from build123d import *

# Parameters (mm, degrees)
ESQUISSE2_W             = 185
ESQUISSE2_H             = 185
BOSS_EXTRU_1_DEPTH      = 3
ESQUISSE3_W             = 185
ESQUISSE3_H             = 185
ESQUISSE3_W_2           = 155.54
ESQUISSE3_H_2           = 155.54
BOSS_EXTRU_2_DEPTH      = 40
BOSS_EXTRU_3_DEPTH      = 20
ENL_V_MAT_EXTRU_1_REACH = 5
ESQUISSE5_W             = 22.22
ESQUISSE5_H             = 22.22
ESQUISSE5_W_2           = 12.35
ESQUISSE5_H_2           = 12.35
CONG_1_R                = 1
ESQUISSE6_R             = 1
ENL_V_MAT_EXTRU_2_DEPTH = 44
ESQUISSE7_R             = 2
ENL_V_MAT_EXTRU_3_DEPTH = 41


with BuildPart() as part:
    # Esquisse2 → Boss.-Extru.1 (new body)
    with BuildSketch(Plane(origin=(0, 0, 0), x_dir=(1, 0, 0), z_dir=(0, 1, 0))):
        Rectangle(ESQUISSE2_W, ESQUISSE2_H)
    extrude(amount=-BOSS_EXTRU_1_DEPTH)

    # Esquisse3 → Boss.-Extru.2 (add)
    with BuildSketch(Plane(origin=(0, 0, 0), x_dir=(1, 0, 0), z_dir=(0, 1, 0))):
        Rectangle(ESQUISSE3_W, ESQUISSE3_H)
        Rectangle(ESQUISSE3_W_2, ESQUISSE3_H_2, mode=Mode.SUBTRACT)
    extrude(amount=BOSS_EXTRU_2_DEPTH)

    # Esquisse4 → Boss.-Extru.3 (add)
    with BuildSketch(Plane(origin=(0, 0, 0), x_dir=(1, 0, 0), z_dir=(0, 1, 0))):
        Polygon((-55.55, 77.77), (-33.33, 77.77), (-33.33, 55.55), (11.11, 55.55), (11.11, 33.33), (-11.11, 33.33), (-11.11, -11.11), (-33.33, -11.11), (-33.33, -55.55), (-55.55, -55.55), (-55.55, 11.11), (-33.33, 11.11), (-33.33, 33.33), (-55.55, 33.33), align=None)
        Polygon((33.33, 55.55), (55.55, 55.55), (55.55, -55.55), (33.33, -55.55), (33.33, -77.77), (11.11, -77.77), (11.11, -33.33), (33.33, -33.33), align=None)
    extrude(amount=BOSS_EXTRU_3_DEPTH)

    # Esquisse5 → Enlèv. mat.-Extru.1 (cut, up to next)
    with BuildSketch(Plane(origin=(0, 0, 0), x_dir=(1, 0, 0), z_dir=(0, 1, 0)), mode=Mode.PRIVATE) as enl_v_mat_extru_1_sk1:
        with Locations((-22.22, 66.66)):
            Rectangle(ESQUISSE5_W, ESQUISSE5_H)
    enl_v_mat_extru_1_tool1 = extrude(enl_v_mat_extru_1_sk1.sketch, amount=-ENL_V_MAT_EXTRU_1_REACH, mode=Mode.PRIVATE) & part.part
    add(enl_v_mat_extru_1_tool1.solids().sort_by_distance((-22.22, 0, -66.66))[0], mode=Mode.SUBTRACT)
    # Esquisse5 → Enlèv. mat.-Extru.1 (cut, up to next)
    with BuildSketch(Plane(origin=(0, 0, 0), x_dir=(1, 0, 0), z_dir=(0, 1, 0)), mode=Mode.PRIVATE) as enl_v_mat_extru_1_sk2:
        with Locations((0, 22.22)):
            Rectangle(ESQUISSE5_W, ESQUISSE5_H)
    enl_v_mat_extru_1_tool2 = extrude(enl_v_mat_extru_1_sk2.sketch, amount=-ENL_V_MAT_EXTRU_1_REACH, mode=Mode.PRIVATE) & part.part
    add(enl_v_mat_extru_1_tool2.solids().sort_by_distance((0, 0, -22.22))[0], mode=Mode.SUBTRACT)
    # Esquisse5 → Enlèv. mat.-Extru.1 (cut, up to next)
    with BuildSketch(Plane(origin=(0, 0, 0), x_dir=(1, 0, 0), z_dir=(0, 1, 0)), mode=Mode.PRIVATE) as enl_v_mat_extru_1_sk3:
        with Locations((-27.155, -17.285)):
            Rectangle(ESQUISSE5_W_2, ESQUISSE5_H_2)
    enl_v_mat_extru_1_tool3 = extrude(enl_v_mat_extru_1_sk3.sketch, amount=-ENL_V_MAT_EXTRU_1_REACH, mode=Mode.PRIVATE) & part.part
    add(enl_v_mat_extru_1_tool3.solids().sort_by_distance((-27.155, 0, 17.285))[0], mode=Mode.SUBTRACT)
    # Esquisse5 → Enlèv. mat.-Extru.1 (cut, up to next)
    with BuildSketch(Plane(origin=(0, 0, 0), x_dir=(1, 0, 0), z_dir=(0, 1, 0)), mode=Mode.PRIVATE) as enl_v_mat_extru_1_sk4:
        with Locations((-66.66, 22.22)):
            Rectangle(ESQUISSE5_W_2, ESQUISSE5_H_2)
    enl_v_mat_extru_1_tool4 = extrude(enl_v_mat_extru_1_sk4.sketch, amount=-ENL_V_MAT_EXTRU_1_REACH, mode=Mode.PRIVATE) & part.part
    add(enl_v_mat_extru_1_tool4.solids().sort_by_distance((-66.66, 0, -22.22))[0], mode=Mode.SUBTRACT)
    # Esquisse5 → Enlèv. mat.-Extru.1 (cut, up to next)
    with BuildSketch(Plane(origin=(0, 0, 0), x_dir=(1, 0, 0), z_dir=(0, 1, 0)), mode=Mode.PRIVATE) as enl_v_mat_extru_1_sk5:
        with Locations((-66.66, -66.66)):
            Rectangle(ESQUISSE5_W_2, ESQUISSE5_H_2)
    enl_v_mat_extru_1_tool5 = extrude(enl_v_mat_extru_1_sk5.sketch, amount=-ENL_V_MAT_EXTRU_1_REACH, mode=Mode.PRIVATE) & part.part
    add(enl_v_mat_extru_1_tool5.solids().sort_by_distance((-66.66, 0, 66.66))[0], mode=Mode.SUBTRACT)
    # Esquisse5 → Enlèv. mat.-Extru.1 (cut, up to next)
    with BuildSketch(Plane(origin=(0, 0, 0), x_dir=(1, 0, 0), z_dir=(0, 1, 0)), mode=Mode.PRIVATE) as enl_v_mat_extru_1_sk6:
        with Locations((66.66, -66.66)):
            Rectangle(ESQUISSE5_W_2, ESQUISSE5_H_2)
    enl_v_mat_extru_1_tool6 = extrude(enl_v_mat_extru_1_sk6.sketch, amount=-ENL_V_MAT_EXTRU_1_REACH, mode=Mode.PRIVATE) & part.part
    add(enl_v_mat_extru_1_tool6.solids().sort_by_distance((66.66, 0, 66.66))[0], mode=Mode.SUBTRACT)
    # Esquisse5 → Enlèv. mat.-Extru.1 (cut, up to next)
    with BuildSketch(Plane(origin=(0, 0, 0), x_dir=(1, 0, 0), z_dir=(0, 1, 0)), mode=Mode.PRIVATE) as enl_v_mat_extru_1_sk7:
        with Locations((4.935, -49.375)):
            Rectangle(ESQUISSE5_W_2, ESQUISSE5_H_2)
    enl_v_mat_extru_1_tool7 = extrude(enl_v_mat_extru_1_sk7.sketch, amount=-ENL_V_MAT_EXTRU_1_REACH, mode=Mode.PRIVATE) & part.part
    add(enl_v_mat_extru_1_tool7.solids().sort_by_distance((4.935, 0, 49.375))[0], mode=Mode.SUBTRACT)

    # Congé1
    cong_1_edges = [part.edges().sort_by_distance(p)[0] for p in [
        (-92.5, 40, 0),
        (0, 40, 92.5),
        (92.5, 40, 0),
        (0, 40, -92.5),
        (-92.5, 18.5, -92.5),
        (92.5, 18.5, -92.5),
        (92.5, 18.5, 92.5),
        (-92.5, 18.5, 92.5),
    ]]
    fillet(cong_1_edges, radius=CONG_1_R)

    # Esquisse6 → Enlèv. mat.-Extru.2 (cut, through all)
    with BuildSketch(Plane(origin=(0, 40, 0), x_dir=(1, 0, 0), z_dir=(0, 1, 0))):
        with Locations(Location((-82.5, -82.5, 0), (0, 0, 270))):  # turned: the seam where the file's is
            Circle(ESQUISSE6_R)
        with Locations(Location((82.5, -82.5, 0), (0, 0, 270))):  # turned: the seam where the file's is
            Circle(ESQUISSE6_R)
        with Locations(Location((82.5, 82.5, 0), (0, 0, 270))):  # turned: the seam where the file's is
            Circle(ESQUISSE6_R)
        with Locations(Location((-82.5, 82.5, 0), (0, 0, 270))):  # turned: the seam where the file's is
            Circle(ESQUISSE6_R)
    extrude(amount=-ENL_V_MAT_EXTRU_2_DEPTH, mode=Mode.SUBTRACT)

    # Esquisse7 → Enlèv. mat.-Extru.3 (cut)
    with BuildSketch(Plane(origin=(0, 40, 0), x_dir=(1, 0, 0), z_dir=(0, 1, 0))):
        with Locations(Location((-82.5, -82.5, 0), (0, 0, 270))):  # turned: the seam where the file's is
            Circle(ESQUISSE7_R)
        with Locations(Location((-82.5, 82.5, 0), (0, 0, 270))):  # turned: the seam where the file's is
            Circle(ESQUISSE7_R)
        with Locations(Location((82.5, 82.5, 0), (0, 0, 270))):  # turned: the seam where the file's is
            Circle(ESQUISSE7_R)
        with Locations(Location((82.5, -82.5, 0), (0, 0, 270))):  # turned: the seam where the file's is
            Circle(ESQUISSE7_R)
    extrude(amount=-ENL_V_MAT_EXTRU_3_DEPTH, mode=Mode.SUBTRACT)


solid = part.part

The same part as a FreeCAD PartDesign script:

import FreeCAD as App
import Part
import Sketcher
Q = App.Units.Quantity


def edges_at(feature, points):
    """Names of the edges that pass closest to the given points."""
    edges = feature.Shape.Edges
    near = lambda p: min(range(len(edges)), key=lambda i: edges[i].distToShape(Part.Vertex(*p))[0])
    return sorted({f"Edge{near(p) + 1}" for p in points})

doc = App.newDocument("Part")
body = doc.addObject("PartDesign::Body", "Body")

# Sketch on XZ plane
sketch1 = doc.addObject("Sketcher::SketchObject", "Sketch")
body.addObject(sketch1)
sketch1.AttachmentSupport = (doc.XZ_Plane, [""])
sketch1.MapMode = "FlatFace"
sketch1.addGeometry([
    Part.LineSegment(App.Vector(-92, -92, 0), App.Vector(-92, 92, 0)),
    Part.LineSegment(App.Vector(-92, 92, 0), App.Vector(92, 92, 0)),
    Part.LineSegment(App.Vector(92, 92, 0), App.Vector(92, -92, 0)),
    Part.LineSegment(App.Vector(92, -92, 0), App.Vector(-92, -92, 0)),
], False)
sketch1.addConstraint([
    Sketcher.Constraint("Coincident", 0, 2, 1, 1),
    Sketcher.Constraint("Coincident", 1, 2, 2, 1),
    Sketcher.Constraint("Coincident", 2, 2, 3, 1),
    Sketcher.Constraint("Coincident", 3, 2, 0, 1),
    Sketcher.Constraint("Vertical", 0),
    Sketcher.Constraint("Horizontal", 1),
    Sketcher.Constraint("Vertical", 2),
    Sketcher.Constraint("Horizontal", 3),
    Sketcher.Constraint("Symmetric", 0, 2, 2, 2, -1, 1),
    Sketcher.Constraint("Equal", 3, 0),
    Sketcher.Constraint("DistanceX", 1, 1, 1, 2, Q("185 mm")),
])
pad1 = doc.addObject("PartDesign::Pad", "Pad")
body.addObject(pad1)
pad1.Profile = sketch1
pad1.Length = 3

# Sketch on XZ plane
sketch2 = doc.addObject("Sketcher::SketchObject", "Sketch001")
body.addObject(sketch2)
sketch2.AttachmentSupport = (doc.XZ_Plane, [""])
sketch2.MapMode = "FlatFace"
sketch2.addGeometry([
    Part.LineSegment(App.Vector(-92, -92, 0), App.Vector(-92, 92, 0)),  # 0
    Part.LineSegment(App.Vector(-92, 92, 0), App.Vector(92, 92, 0)),  # 1
    Part.LineSegment(App.Vector(92, 92, 0), App.Vector(92, -92, 0)),  # 2
    Part.LineSegment(App.Vector(92, -92, 0), App.Vector(-92, -92, 0)),  # 3
    Part.LineSegment(App.Vector(78, 78, 0), App.Vector(-78, 78, 0)),  # 4
    Part.LineSegment(App.Vector(-78, 78, 0), App.Vector(-78, -78, 0)),  # 5
    Part.LineSegment(App.Vector(-78, -78, 0), App.Vector(78, -78, 0)),  # 6
    Part.LineSegment(App.Vector(78, -78, 0), App.Vector(78, 78, 0)),  # 7
], False)
sketch2.addConstraint([
    Sketcher.Constraint("Coincident", 0, 2, 1, 1),
    Sketcher.Constraint("Coincident", 1, 2, 2, 1),
    Sketcher.Constraint("Coincident", 2, 2, 3, 1),
    Sketcher.Constraint("Coincident", 3, 2, 0, 1),
    Sketcher.Constraint("Coincident", 4, 2, 5, 1),
    Sketcher.Constraint("Coincident", 5, 2, 6, 1),
    Sketcher.Constraint("Coincident", 6, 2, 7, 1),
    Sketcher.Constraint("Coincident", 7, 2, 4, 1),
    Sketcher.Constraint("Vertical", 0),
    Sketcher.Constraint("Horizontal", 1),
    Sketcher.Constraint("Vertical", 2),
    Sketcher.Constraint("Horizontal", 3),
    Sketcher.Constraint("Horizontal", 4),
    Sketcher.Constraint("Vertical", 5),
    Sketcher.Constraint("Horizontal", 6),
    Sketcher.Constraint("Vertical", 7),
    Sketcher.Constraint("Symmetric", 0, 2, 2, 2, -1, 1),
    Sketcher.Constraint("Symmetric", 4, 2, 6, 2, -1, 1),
    Sketcher.Constraint("Equal", 3, 0),
    Sketcher.Constraint("Equal", 6, 5),
    Sketcher.Constraint("DistanceX", 1, 1, 1, 2, Q("185 mm")),
    Sketcher.Constraint("DistanceX", 4, 2, 4, 1, Q("155.54 mm")),
])
pad2 = doc.addObject("PartDesign::Pad", "Pad001")
body.addObject(pad2)
pad2.Profile = sketch2
pad2.Length = 40
pad2.Reversed = True

# Sketch on XZ plane
sketch3 = doc.addObject("Sketcher::SketchObject", "Sketch002")
body.addObject(sketch3)
sketch3.AttachmentSupport = (doc.XZ_Plane, [""])
sketch3.MapMode = "FlatFace"
sketch3.addGeometry([
    Part.LineSegment(App.Vector(-33, -78, 0), App.Vector(-56, -78, 0)),  # 0
    Part.LineSegment(App.Vector(-56, -78, 0), App.Vector(-56, -33, 0)),  # 1
    Part.LineSegment(App.Vector(-56, -33, 0), App.Vector(-33, -33, 0)),  # 2
    Part.LineSegment(App.Vector(-33, -33, 0), App.Vector(-33, -11, 0)),  # 3
    Part.LineSegment(App.Vector(-33, -11, 0), App.Vector(-56, -11, 0)),  # 4
    Part.LineSegment(App.Vector(-56, -11, 0), App.Vector(-56, 56, 0)),  # 5
    Part.LineSegment(App.Vector(-56, 56, 0), App.Vector(-33, 56, 0)),  # 6
    Part.LineSegment(App.Vector(-33, 56, 0), App.Vector(-33, 11, 0)),  # 7
    Part.LineSegment(App.Vector(-33, 11, 0), App.Vector(-11, 11, 0)),  # 8
    Part.LineSegment(App.Vector(-11, 11, 0), App.Vector(-11, -33, 0)),  # 9
    Part.LineSegment(App.Vector(-11, -33, 0), App.Vector(11, -33, 0)),  # 10
    Part.LineSegment(App.Vector(11, -33, 0), App.Vector(11, -56, 0)),  # 11
    Part.LineSegment(App.Vector(11, -56, 0), App.Vector(-33, -56, 0)),  # 12
    Part.LineSegment(App.Vector(-33, -56, 0), App.Vector(-33, -78, 0)),  # 13
    Part.LineSegment(App.Vector(56, -56, 0), App.Vector(33, -56, 0)),  # 14
    Part.LineSegment(App.Vector(33, -56, 0), App.Vector(33, 33, 0)),  # 15
    Part.LineSegment(App.Vector(33, 33, 0), App.Vector(11, 33, 0)),  # 16
    Part.LineSegment(App.Vector(11, 33, 0), App.Vector(11, 78, 0)),  # 17
    Part.LineSegment(App.Vector(11, 78, 0), App.Vector(33, 78, 0)),  # 18
    Part.LineSegment(App.Vector(33, 78, 0), App.Vector(33, 56, 0)),  # 19
    Part.LineSegment(App.Vector(33, 56, 0), App.Vector(56, 56, 0)),  # 20
    Part.LineSegment(App.Vector(56, 56, 0), App.Vector(56, -56, 0)),  # 21
], False)
sketch3.addConstraint([
    Sketcher.Constraint("Coincident", 0, 2, 1, 1),
    Sketcher.Constraint("Coincident", 1, 2, 2, 1),
    Sketcher.Constraint("Coincident", 2, 2, 3, 1),
    Sketcher.Constraint("Coincident", 3, 2, 4, 1),
    Sketcher.Constraint("Coincident", 4, 2, 5, 1),
    Sketcher.Constraint("Coincident", 5, 2, 6, 1),
    Sketcher.Constraint("Coincident", 6, 2, 7, 1),
    Sketcher.Constraint("Coincident", 7, 2, 8, 1),
    Sketcher.Constraint("Coincident", 8, 2, 9, 1),
    Sketcher.Constraint("Coincident", 9, 2, 10, 1),
    Sketcher.Constraint("Coincident", 10, 2, 11, 1),
    Sketcher.Constraint("Coincident", 11, 2, 12, 1),
    Sketcher.Constraint("Coincident", 12, 2, 13, 1),
    Sketcher.Constraint("Coincident", 13, 2, 0, 1),
    Sketcher.Constraint("Coincident", 14, 2, 15, 1),
    Sketcher.Constraint("Coincident", 15, 2, 16, 1),
    Sketcher.Constraint("Coincident", 16, 2, 17, 1),
    Sketcher.Constraint("Coincident", 17, 2, 18, 1),
    Sketcher.Constraint("Coincident", 18, 2, 19, 1),
    Sketcher.Constraint("Coincident", 19, 2, 20, 1),
    Sketcher.Constraint("Coincident", 20, 2, 21, 1),
    Sketcher.Constraint("Coincident", 21, 2, 14, 1),
    Sketcher.Constraint("Horizontal", 0),
    Sketcher.Constraint("Vertical", 1),
    Sketcher.Constraint("Horizontal", 2),
    Sketcher.Constraint("Vertical", 3),
    Sketcher.Constraint("Horizontal", 4),
    Sketcher.Constraint("Vertical", 5),
    Sketcher.Constraint("Horizontal", 6),
    Sketcher.Constraint("Vertical", 7),
    Sketcher.Constraint("Horizontal", 8),
    Sketcher.Constraint("Vertical", 9),
    Sketcher.Constraint("Horizontal", 10),
    Sketcher.Constraint("Vertical", 11),
    Sketcher.Constraint("Horizontal", 12),
    Sketcher.Constraint("Vertical", 13),
    Sketcher.Constraint("Horizontal", 14),
    Sketcher.Constraint("Vertical", 15),
    Sketcher.Constraint("Horizontal", 16),
    Sketcher.Constraint("Vertical", 17),
    Sketcher.Constraint("Horizontal", 18),
    Sketcher.Constraint("Vertical", 19),
    Sketcher.Constraint("Horizontal", 20),
    Sketcher.Constraint("Vertical", 21),
    Sketcher.Constraint("Symmetric", 6, 2, 14, 2, -1, 1),
    Sketcher.Constraint("Symmetric", 2, 2, 15, 2, -1, 1),
    Sketcher.Constraint("Symmetric", 9, 2, 16, 2, -1, 1),
    Sketcher.Constraint("Symmetric", 13, 2, 18, 2, -1, 1),
    Sketcher.Constraint("Symmetric", 12, 2, 14, 2, -2),
    Sketcher.Constraint("Symmetric", 5, 2, 20, 2, -2),
    Sketcher.Constraint("Vertical", 1, 2, 4, 2),
    Sketcher.Constraint("Vertical", 11, 2, 16, 2),
    Sketcher.Constraint("Equal", 6, 8),
    Sketcher.Constraint("Equal", 8, 10),
    Sketcher.Constraint("Equal", 12, 1),
    Sketcher.Constraint("Equal", 20, 3),
    Sketcher.Constraint("Equal", 1, 7),
    Sketcher.Constraint("Equal", 7, 9),
    Sketcher.Constraint("Equal", 3, 11),
    Sketcher.Constraint("DistanceY", 21, 2, 21, 1, Q("111.1 mm")),
])
pad3 = doc.addObject("PartDesign::Pad", "Pad002")
body.addObject(pad3)
pad3.Profile = sketch3
pad3.Length = 20
pad3.Reversed = True

# Sketch on XZ plane
sketch4 = doc.addObject("Sketcher::SketchObject", "Sketch003")
body.addObject(sketch4)
sketch4.AttachmentSupport = (doc.XZ_Plane, [""])
sketch4.MapMode = "FlatFace"
sketch4.addGeometry([
    Part.LineSegment(App.Vector(-33, -78, 0), App.Vector(-33, -56, 0)),
    Part.LineSegment(App.Vector(-33, -56, 0), App.Vector(-11, -56, 0)),
    Part.LineSegment(App.Vector(-11, -56, 0), App.Vector(-11, -78, 0)),
    Part.LineSegment(App.Vector(-11, -78, 0), App.Vector(-33, -78, 0)),
], False)
sketch4.addConstraint([
    Sketcher.Constraint("Coincident", 0, 2, 1, 1),
    Sketcher.Constraint("Coincident", 1, 2, 2, 1),
    Sketcher.Constraint("Coincident", 2, 2, 3, 1),
    Sketcher.Constraint("Coincident", 3, 2, 0, 1),
    Sketcher.Constraint("Vertical", 0),
    Sketcher.Constraint("Horizontal", 1),
    Sketcher.Constraint("Vertical", 2),
    Sketcher.Constraint("Horizontal", 3),
    Sketcher.Constraint("Equal", 3, 0),
    Sketcher.Constraint("DistanceX", 1, 1, 1, 2, Q("22.22 mm")),
    Sketcher.Constraint("DistanceX", 0, 2, -1, 1, Q("33.33 mm")),
    Sketcher.Constraint("DistanceY", 0, 2, -1, 1, Q("55.55 mm")),
])
pocket1 = doc.addObject("PartDesign::Pocket", "Pocket")
body.addObject(pocket1)
pocket1.Profile = sketch4
pocket1.Type = "UpToFirst"
pocket1.Reversed = True

# Sketch on XZ plane
sketch5 = doc.addObject("Sketcher::SketchObject", "Sketch004")
body.addObject(sketch5)
sketch5.AttachmentSupport = (doc.XZ_Plane, [""])
sketch5.MapMode = "FlatFace"
sketch5.addGeometry([
    Part.LineSegment(App.Vector(-11, -33, 0), App.Vector(-11, -11, 0)),
    Part.LineSegment(App.Vector(-11, -11, 0), App.Vector(11, -11, 0)),
    Part.LineSegment(App.Vector(11, -11, 0), App.Vector(11, -33, 0)),
    Part.LineSegment(App.Vector(11, -33, 0), App.Vector(-11, -33, 0)),
], False)
sketch5.addConstraint([
    Sketcher.Constraint("Coincident", 0, 2, 1, 1),
    Sketcher.Constraint("Coincident", 1, 2, 2, 1),
    Sketcher.Constraint("Coincident", 2, 2, 3, 1),
    Sketcher.Constraint("Coincident", 3, 2, 0, 1),
    Sketcher.Constraint("Vertical", 0),
    Sketcher.Constraint("Horizontal", 1),
    Sketcher.Constraint("Vertical", 2),
    Sketcher.Constraint("Horizontal", 3),
    Sketcher.Constraint("Equal", 3, 0),
    Sketcher.Constraint("DistanceX", 1, 1, 1, 2, Q("22.22 mm")),
    Sketcher.Constraint("DistanceX", 0, 2, -1, 1, Q("11.11 mm")),
    Sketcher.Constraint("DistanceY", 0, 2, -1, 1, Q("11.11 mm")),
])
pocket2 = doc.addObject("PartDesign::Pocket", "Pocket001")
body.addObject(pocket2)
pocket2.Profile = sketch5
pocket2.Type = "UpToFirst"
pocket2.Reversed = True

# Sketch on XZ plane
sketch6 = doc.addObject("Sketcher::SketchObject", "Sketch005")
body.addObject(sketch6)
sketch6.AttachmentSupport = (doc.XZ_Plane, [""])
sketch6.MapMode = "FlatFace"
sketch6.addGeometry([
    Part.LineSegment(App.Vector(-33, 11, 0), App.Vector(-33, 23, 0)),
    Part.LineSegment(App.Vector(-33, 23, 0), App.Vector(-21, 23, 0)),
    Part.LineSegment(App.Vector(-21, 23, 0), App.Vector(-21, 11, 0)),
    Part.LineSegment(App.Vector(-21, 11, 0), App.Vector(-33, 11, 0)),
], False)
sketch6.addConstraint([
    Sketcher.Constraint("Coincident", 0, 2, 1, 1),
    Sketcher.Constraint("Coincident", 1, 2, 2, 1),
    Sketcher.Constraint("Coincident", 2, 2, 3, 1),
    Sketcher.Constraint("Coincident", 3, 2, 0, 1),
    Sketcher.Constraint("Vertical", 0),
    Sketcher.Constraint("Horizontal", 1),
    Sketcher.Constraint("Vertical", 2),
    Sketcher.Constraint("Horizontal", 3),
    Sketcher.Constraint("Equal", 3, 0),
    Sketcher.Constraint("DistanceX", 1, 1, 1, 2, Q("12.35 mm")),
    Sketcher.Constraint("DistanceX", 0, 2, -1, 1, Q("33.33 mm")),
    Sketcher.Constraint("DistanceY", -1, 1, 0, 2, Q("23.46 mm")),
])
pocket3 = doc.addObject("PartDesign::Pocket", "Pocket002")
body.addObject(pocket3)
pocket3.Profile = sketch6
pocket3.Type = "UpToFirst"
pocket3.Reversed = True

# Sketch on XZ plane
sketch7 = doc.addObject("Sketcher::SketchObject", "Sketch006")
body.addObject(sketch7)
sketch7.AttachmentSupport = (doc.XZ_Plane, [""])
sketch7.MapMode = "FlatFace"
sketch7.addGeometry([
    Part.LineSegment(App.Vector(-73, -28, 0), App.Vector(-73, -16, 0)),
    Part.LineSegment(App.Vector(-73, -16, 0), App.Vector(-60, -16, 0)),
    Part.LineSegment(App.Vector(-60, -16, 0), App.Vector(-60, -28, 0)),
    Part.LineSegment(App.Vector(-60, -28, 0), App.Vector(-73, -28, 0)),
], False)
sketch7.addConstraint([
    Sketcher.Constraint("Coincident", 0, 2, 1, 1),
    Sketcher.Constraint("Coincident", 1, 2, 2, 1),
    Sketcher.Constraint("Coincident", 2, 2, 3, 1),
    Sketcher.Constraint("Coincident", 3, 2, 0, 1),
    Sketcher.Constraint("Vertical", 0),
    Sketcher.Constraint("Horizontal", 1),
    Sketcher.Constraint("Vertical", 2),
    Sketcher.Constraint("Horizontal", 3),
    Sketcher.Constraint("Equal", 3, 0),
    Sketcher.Constraint("DistanceX", 1, 1, 1, 2, Q("12.35 mm")),
    Sketcher.Constraint("DistanceX", 0, 2, -1, 1, Q("72.835 mm")),
    Sketcher.Constraint("DistanceY", 0, 2, -1, 1, Q("16.045 mm")),
])
pocket4 = doc.addObject("PartDesign::Pocket", "Pocket003")
body.addObject(pocket4)
pocket4.Profile = sketch7
pocket4.Type = "UpToFirst"
pocket4.Reversed = True

# Sketch on XZ plane
sketch8 = doc.addObject("Sketcher::SketchObject", "Sketch007")
body.addObject(sketch8)
sketch8.AttachmentSupport = (doc.XZ_Plane, [""])
sketch8.MapMode = "FlatFace"
sketch8.addGeometry([
    Part.LineSegment(App.Vector(-73, 60, 0), App.Vector(-73, 73, 0)),
    Part.LineSegment(App.Vector(-73, 73, 0), App.Vector(-60, 73, 0)),
    Part.LineSegment(App.Vector(-60, 73, 0), App.Vector(-60, 60, 0)),
    Part.LineSegment(App.Vector(-60, 60, 0), App.Vector(-73, 60, 0)),
], False)
sketch8.addConstraint([
    Sketcher.Constraint("Coincident", 0, 2, 1, 1),
    Sketcher.Constraint("Coincident", 1, 2, 2, 1),
    Sketcher.Constraint("Coincident", 2, 2, 3, 1),
    Sketcher.Constraint("Coincident", 3, 2, 0, 1),
    Sketcher.Constraint("Vertical", 0),
    Sketcher.Constraint("Horizontal", 1),
    Sketcher.Constraint("Vertical", 2),
    Sketcher.Constraint("Horizontal", 3),
    Sketcher.Constraint("Equal", 3, 0),
    Sketcher.Constraint("DistanceX", 1, 1, 1, 2, Q("12.35 mm")),
    Sketcher.Constraint("DistanceX", 0, 2, -1, 1, Q("72.835 mm")),
    Sketcher.Constraint("DistanceY", -1, 1, 0, 2, Q("72.835 mm")),
])
pocket5 = doc.addObject("PartDesign::Pocket", "Pocket004")
body.addObject(pocket5)
pocket5.Profile = sketch8
pocket5.Type = "UpToFirst"
pocket5.Reversed = True

# Sketch on XZ plane
sketch9 = doc.addObject("Sketcher::SketchObject", "Sketch008")
body.addObject(sketch9)
sketch9.AttachmentSupport = (doc.XZ_Plane, [""])
sketch9.MapMode = "FlatFace"
sketch9.addGeometry([
    Part.LineSegment(App.Vector(60, 60, 0), App.Vector(60, 73, 0)),
    Part.LineSegment(App.Vector(60, 73, 0), App.Vector(73, 73, 0)),
    Part.LineSegment(App.Vector(73, 73, 0), App.Vector(73, 60, 0)),
    Part.LineSegment(App.Vector(73, 60, 0), App.Vector(60, 60, 0)),
], False)
sketch9.addConstraint([
    Sketcher.Constraint("Coincident", 0, 2, 1, 1),
    Sketcher.Constraint("Coincident", 1, 2, 2, 1),
    Sketcher.Constraint("Coincident", 2, 2, 3, 1),
    Sketcher.Constraint("Coincident", 3, 2, 0, 1),
    Sketcher.Constraint("Vertical", 0),
    Sketcher.Constraint("Horizontal", 1),
    Sketcher.Constraint("Vertical", 2),
    Sketcher.Constraint("Horizontal", 3),
    Sketcher.Constraint("Equal", 3, 0),
    Sketcher.Constraint("DistanceX", 1, 1, 1, 2, Q("12.35 mm")),
    Sketcher.Constraint("DistanceX", -1, 1, 0, 2, Q("60.485 mm")),
    Sketcher.Constraint("DistanceY", -1, 1, 0, 2, Q("72.835 mm")),
])
pocket6 = doc.addObject("PartDesign::Pocket", "Pocket005")
body.addObject(pocket6)
pocket6.Profile = sketch9
pocket6.Type = "UpToFirst"
pocket6.Reversed = True

# Sketch on XZ plane
sketch10 = doc.addObject("Sketcher::SketchObject", "Sketch009")
body.addObject(sketch10)
sketch10.AttachmentSupport = (doc.XZ_Plane, [""])
sketch10.MapMode = "FlatFace"
sketch10.addGeometry([
    Part.LineSegment(App.Vector(-1, 43, 0), App.Vector(-1, 56, 0)),
    Part.LineSegment(App.Vector(-1, 56, 0), App.Vector(11, 56, 0)),
    Part.LineSegment(App.Vector(11, 56, 0), App.Vector(11, 43, 0)),
    Part.LineSegment(App.Vector(11, 43, 0), App.Vector(-1, 43, 0)),
], False)
sketch10.addConstraint([
    Sketcher.Constraint("Coincident", 0, 2, 1, 1),
    Sketcher.Constraint("Coincident", 1, 2, 2, 1),
    Sketcher.Constraint("Coincident", 2, 2, 3, 1),
    Sketcher.Constraint("Coincident", 3, 2, 0, 1),
    Sketcher.Constraint("Vertical", 0),
    Sketcher.Constraint("Horizontal", 1),
    Sketcher.Constraint("Vertical", 2),
    Sketcher.Constraint("Horizontal", 3),
    Sketcher.Constraint("Equal", 3, 0),
    Sketcher.Constraint("DistanceX", 1, 1, 1, 2, Q("12.35 mm")),
    Sketcher.Constraint("DistanceY", -1, 1, 2, 2, Q("43.2 mm")),
    Sketcher.Constraint("DistanceX", 0, 2, -1, 1, Q("1.24 mm")),
])
pocket7 = doc.addObject("PartDesign::Pocket", "Pocket006")
body.addObject(pocket7)
pocket7.Profile = sketch10
pocket7.Type = "UpToFirst"
pocket7.Reversed = True
doc.recompute()

fillet = doc.addObject("PartDesign::Fillet", "Fillet")
body.addObject(fillet)
fillet.Base = (pocket7, edges_at(pocket7, [
    (-92.5, 40, 0),
    (0, 40, 92.5),
    (92.5, 40, 0),
    (0, 40, -92.5),
    (-92.5, 18.5, -92.5),
    (92.5, 18.5, -92.5),
    (92.5, 18.5, 92.5),
    (-92.5, 18.5, 92.5),
]))
fillet.Radius = 1

# Sketch on XZ plane
sketch11 = doc.addObject("Sketcher::SketchObject", "Sketch010")
body.addObject(sketch11)
sketch11.AttachmentSupport = (doc.XZ_Plane, [""])
sketch11.MapMode = "FlatFace"
sketch11.AttachmentOffset = App.Placement(App.Vector(0, 0, -40), App.Rotation())
sketch11.addGeometry([
    Part.Circle(App.Vector(-82.5, 82.5, 0), App.Vector(0, 0, 1), 1),
    Part.Circle(App.Vector(82.5, 82.5, 0), App.Vector(0, 0, 1), 1),
    Part.Circle(App.Vector(82.5, -82.5, 0), App.Vector(0, 0, 1), 1),
    Part.Circle(App.Vector(-82.5, -82.5, 0), App.Vector(0, 0, 1), 1),
], False)
sketch11.addConstraint([
    Sketcher.Constraint("Equal", 0, 1),
    Sketcher.Constraint("Equal", 1, 2),
    Sketcher.Constraint("Equal", 2, 3),
    Sketcher.Constraint("Symmetric", 0, 3, 2, 3, -1, 1),
    Sketcher.Constraint("Symmetric", 1, 3, 3, 3, -1, 1),
    Sketcher.Constraint("Symmetric", 0, 3, 1, 3, -2),
    Sketcher.Constraint("Diameter", 0, Q("2 mm")),
    Sketcher.Constraint("DistanceX", 0, 3, 1, 3, Q("165 mm")),
    Sketcher.Constraint("DistanceY", 2, 3, 1, 3, Q("165 mm")),
])
pocket8 = doc.addObject("PartDesign::Pocket", "Pocket007")
body.addObject(pocket8)
pocket8.Profile = sketch11
pocket8.Type = "ThroughAll"
pocket8.Reversed = True

# Sketch on XZ plane
sketch12 = doc.addObject("Sketcher::SketchObject", "Sketch011")
body.addObject(sketch12)
sketch12.AttachmentSupport = (doc.XZ_Plane, [""])
sketch12.MapMode = "FlatFace"
sketch12.AttachmentOffset = App.Placement(App.Vector(0, 0, -40), App.Rotation())
sketch12.addGeometry([
    Part.Circle(App.Vector(-82.5, 82.5, 0), App.Vector(0, 0, 1), 2),
    Part.Circle(App.Vector(-82.5, -82.5, 0), App.Vector(0, 0, 1), 2),
    Part.Circle(App.Vector(82.5, -82.5, 0), App.Vector(0, 0, 1), 2),
    Part.Circle(App.Vector(82.5, 82.5, 0), App.Vector(0, 0, 1), 2),
], False)
sketch12.addConstraint([
    Sketcher.Constraint("Equal", 0, 1),
    Sketcher.Constraint("Equal", 1, 2),
    Sketcher.Constraint("Equal", 2, 3),
    Sketcher.Constraint("Symmetric", 0, 3, 2, 3, -1, 1),
    Sketcher.Constraint("Symmetric", 1, 3, 3, 3, -1, 1),
    Sketcher.Constraint("Symmetric", 1, 3, 2, 3, -2),
    Sketcher.Constraint("Diameter", 0, Q("4 mm")),
    Sketcher.Constraint("DistanceY", 1, 3, 0, 3, Q("165 mm")),
    Sketcher.Constraint("DistanceX", 1, 3, 2, 3, Q("165 mm")),
])
pocket9 = doc.addObject("PartDesign::Pocket", "Pocket008")
body.addObject(pocket9)
pocket9.Profile = sketch12
pocket9.Length = 41
pocket9.Reversed = True

doc.recompute()
